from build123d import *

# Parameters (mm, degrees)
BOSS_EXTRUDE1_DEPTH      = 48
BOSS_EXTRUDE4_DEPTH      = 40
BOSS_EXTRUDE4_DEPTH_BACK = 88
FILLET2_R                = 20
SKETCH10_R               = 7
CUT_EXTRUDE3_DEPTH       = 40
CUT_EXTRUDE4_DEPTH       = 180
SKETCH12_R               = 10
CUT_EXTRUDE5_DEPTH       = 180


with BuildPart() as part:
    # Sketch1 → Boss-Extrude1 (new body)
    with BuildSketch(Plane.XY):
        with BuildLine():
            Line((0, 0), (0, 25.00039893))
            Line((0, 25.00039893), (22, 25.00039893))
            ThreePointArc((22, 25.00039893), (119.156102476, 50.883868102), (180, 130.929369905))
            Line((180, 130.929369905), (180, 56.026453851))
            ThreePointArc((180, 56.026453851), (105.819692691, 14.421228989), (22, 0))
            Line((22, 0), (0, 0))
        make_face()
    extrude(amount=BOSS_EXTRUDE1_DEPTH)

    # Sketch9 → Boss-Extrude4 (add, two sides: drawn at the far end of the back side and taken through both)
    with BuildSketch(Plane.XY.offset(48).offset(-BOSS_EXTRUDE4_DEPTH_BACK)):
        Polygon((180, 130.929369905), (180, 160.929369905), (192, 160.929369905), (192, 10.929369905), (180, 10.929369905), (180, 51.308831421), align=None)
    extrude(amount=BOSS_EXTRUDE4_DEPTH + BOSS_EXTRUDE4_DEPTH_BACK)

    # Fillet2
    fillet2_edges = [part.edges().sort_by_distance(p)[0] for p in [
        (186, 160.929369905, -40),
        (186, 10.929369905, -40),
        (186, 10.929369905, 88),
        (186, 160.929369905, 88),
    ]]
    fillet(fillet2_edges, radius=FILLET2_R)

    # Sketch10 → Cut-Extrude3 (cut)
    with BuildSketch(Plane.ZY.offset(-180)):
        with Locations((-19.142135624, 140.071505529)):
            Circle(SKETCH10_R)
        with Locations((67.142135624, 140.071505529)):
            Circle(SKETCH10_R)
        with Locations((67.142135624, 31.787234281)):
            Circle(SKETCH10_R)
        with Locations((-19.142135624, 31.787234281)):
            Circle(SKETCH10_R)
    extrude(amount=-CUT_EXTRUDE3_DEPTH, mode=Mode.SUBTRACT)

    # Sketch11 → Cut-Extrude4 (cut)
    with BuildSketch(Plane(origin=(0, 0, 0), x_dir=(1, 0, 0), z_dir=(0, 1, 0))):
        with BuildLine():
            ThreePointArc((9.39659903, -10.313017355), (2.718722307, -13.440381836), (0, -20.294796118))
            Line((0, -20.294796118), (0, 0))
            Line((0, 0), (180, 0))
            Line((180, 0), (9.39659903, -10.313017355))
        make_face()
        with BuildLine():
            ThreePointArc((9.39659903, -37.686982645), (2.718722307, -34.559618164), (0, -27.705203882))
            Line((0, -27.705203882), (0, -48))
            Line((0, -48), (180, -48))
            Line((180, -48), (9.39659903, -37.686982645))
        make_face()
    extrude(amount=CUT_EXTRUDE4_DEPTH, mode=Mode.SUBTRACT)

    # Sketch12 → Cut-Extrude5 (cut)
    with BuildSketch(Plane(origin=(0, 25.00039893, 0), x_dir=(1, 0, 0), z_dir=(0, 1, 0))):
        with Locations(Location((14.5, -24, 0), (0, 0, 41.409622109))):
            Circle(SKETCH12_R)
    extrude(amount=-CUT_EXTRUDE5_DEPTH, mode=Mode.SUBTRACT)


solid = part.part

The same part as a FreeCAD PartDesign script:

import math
import FreeCAD as App
import Part
import Sketcher

V = App.Vector


def edges_at(feature, points):
    """Names of the edges that pass closest to the given points."""
    edges = feature.Shape.Edges
    near = lambda p: min(range(len(edges)), key=lambda i: edges[i].distToShape(Part.Vertex(*p))[0])
    return sorted({f"Edge{near(p) + 1}" for p in points})


def add_polygon(sketch, points):
    """Adds a closed chain of lines whose ends are joined by coincident constraints."""
    first, n = sketch.GeometryCount, len(points)
    for a, b in zip(points, points[1:] + points[:1]):
        sketch.addGeometry(Part.LineSegment(App.Vector(*a, 0), App.Vector(*b, 0)), False)
    for i in range(n):
        sketch.addConstraint(Sketcher.Constraint("Coincident", first + i, 2, first + (i + 1) % n, 1))

doc = App.newDocument("Part")
body = doc.addObject("PartDesign::Body", "Body")

# Sketch on XY plane
sketch1 = body.newObject("Sketcher::SketchObject", "Sketch")
sketch1.AttachmentSupport = (doc.getObject("XY_Plane"), [""])
sketch1.MapMode = "FlatFace"
sketch1.addGeometry(Part.LineSegment(V(0, 25, 0), V(0, 0, 0)), False)
sketch1.addGeometry(Part.LineSegment(V(0, 0, 0), V(22, 0, 0)), False)
sketch1.addGeometry(Part.ArcOfCircle(Part.Circle(V(22, 251, 0), V(0, 0, 1), 251), math.radians(-90), math.radians(-51)), False)
sketch1.addGeometry(Part.LineSegment(V(180, 56, 0), V(180, 131, 0)), False)
sketch1.addGeometry(Part.ArcOfCircle(Part.Circle(V(33, 180, 0), V(0, 0, 1), 155), math.radians(-94), math.radians(-18)), False)
sketch1.addGeometry(Part.LineSegment(V(22, 25, 0), V(0, 25, 0)), False)
sketch1.addConstraint(Sketcher.Constraint("Coincident", 0, 2, 1, 1))
sketch1.addConstraint(Sketcher.Constraint("Tangent", 1, 2, 2, 1))
sketch1.addConstraint(Sketcher.Constraint("Coincident", 2, 2, 3, 1))
sketch1.addConstraint(Sketcher.Constraint("Coincident", 3, 2, 4, 2))
sketch1.addConstraint(Sketcher.Constraint("Coincident", 4, 1, 5, 1))
sketch1.addConstraint(Sketcher.Constraint("Coincident", 5, 2, 0, 1))
sketch1.addConstraint(Sketcher.Constraint("Vertical", 0))
sketch1.addConstraint(Sketcher.Constraint("Horizontal", 1))
sketch1.addConstraint(Sketcher.Constraint("Vertical", 3))
sketch1.addConstraint(Sketcher.Constraint("Horizontal", 5))
sketch1.addConstraint(Sketcher.Constraint("Coincident", 0, 2, -1, 1))
sketch1.addConstraint(Sketcher.Constraint("Vertical", 1, 2, 4, 1))
sketch1.addConstraint(Sketcher.Constraint("DistanceX", 1, 1, 1, 2, 22.0))
sketch1.addConstraint(Sketcher.Constraint("DistanceX", -1, 1, 2, 2, 180.0))
sketch1.addConstraint(Sketcher.Constraint("Radius", 2, 250.800841))
sketch1.addConstraint(Sketcher.Constraint("Radius", 4, 155.03067))
sketch1.addConstraint(Sketcher.Constraint("DistanceY", 0, 2, 0, 1, 25.000399))
sketch1.addConstraint(Sketcher.Constraint("DistanceY", 3, 1, 3, 2, 74.902916))
pad1 = body.newObject("PartDesign::Pad", "Pad")
pad1.Profile = sketch1
pad1.Length = 48

# Sketch on XY plane
sketch2 = body.newObject("Sketcher::SketchObject", "Sketch001")
sketch2.AttachmentSupport = (doc.getObject("XY_Plane"), [""])
sketch2.MapMode = "FlatFace"
sketch2.AttachmentOffset = App.Placement(V(0, 0, 48), App.Rotation())
add_polygon(sketch2, [(180, 161), (180, 11), (192, 11), (192, 161)])  # lines 0-3
sketch2.addConstraint(Sketcher.Constraint("Vertical", 0))
sketch2.addConstraint(Sketcher.Constraint("Horizontal", 1))
sketch2.addConstraint(Sketcher.Constraint("Vertical", 2))
sketch2.addConstraint(Sketcher.Constraint("Horizontal", 3))
sketch2.addConstraint(Sketcher.Constraint("DistanceX", 1, 1, 1, 2, 12.0))
sketch2.addConstraint(Sketcher.Constraint("DistanceY", 0, 2, 0, 1, 150.0))
sketch2.addConstraint(Sketcher.Constraint("DistanceX", -1, 1, 0, 2, 180.0))
sketch2.addConstraint(Sketcher.Constraint("DistanceY", -1, 1, 0, 2, 10.92937))
pad2 = body.newObject("PartDesign::Pad", "Pad001")
pad2.Profile = sketch2
pad2.Type = "TwoLengths"
pad2.Length = 40
pad2.Length2 = 88
doc.recompute()

fillet = body.newObject("PartDesign::Fillet", "Fillet")
fillet.Base = (pad2, edges_at(pad2, [
    (186, 160.929, -40),
    (186, 10.929, -40),
    (186, 10.929, 88),
    (186, 160.929, 88),
]))
fillet.Radius = 20

# Sketch on YZ plane
sketch3 = body.newObject("Sketcher::SketchObject", "Sketch002")
sketch3.AttachmentSupport = (doc.getObject("YZ_Plane"), [""])
sketch3.MapMode = "FlatFace"
sketch3.AttachmentOffset = App.Placement(V(0, 0, 180), App.Rotation())
sketch3.addGeometry(Part.Circle(V(140, -19, 0), V(0, 0, 1), 7), False)
sketch3.addGeometry(Part.Circle(V(140, 67, 0), V(0, 0, 1), 7), False)
sketch3.addGeometry(Part.Circle(V(32, 67, 0), V(0, 0, 1), 7), False)
sketch3.addGeometry(Part.Circle(V(32, -19, 0), V(0, 0, 1), 7), False)
sketch3.addConstraint(Sketcher.Constraint("Equal", 0, 1))
sketch3.addConstraint(Sketcher.Constraint("Equal", 1, 2))
sketch3.addConstraint(Sketcher.Constraint("Equal", 2, 3))
sketch3.addConstraint(Sketcher.Constraint("Horizontal", 1, 3, 2, 3))
sketch3.addConstraint(Sketcher.Constraint("Horizontal", 0, 3, 3, 3))
sketch3.addConstraint(Sketcher.Constraint("Vertical", 0, 3, 1, 3))
sketch3.addConstraint(Sketcher.Constraint("Vertical", 2, 3, 3, 3))
sketch3.addConstraint(Sketcher.Constraint("Diameter", 0, 14.0))
sketch3.addConstraint(Sketcher.Constraint("DistanceY", 0, 3, 1, 3, 86.284271))
sketch3.addConstraint(Sketcher.Constraint("DistanceX", 2, 3, 1, 3, 108.284271))
sketch3.addConstraint(Sketcher.Constraint("DistanceX", -1, 1, 0, 3, 140.071506))
sketch3.addConstraint(Sketcher.Constraint("DistanceY", 0, 3, -1, 1, 19.142136))
pocket1 = body.newObject("PartDesign::Pocket", "Pocket")
pocket1.Profile = sketch3
pocket1.Length = 40
pocket1.Reversed = True

# Sketch on XZ plane
sketch4 = body.newObject("Sketcher::SketchObject", "Sketch003")
sketch4.AttachmentSupport = (doc.getObject("XZ_Plane"), [""])
sketch4.MapMode = "FlatFace"
sketch4.addGeometry(Part.ArcOfCircle(Part.Circle(V(10, 20, 0), V(0, 0, 1), 10), math.radians(-180), math.radians(-93)), False)
sketch4.addGeometry(Part.LineSegment(V(9, 10, 0), V(180, 0, 0)), False)
sketch4.addGeometry(Part.LineSegment(V(180, 0, 0), V(0, 0, 0)), False)
sketch4.addGeometry(Part.LineSegment(V(0, 0, 0), V(0, 20, 0)), False)
sketch4.addGeometry(Part.ArcOfCircle(Part.Circle(V(10, 28, 0), V(0, 0, 1), 10), math.radians(93), math.radians(180)), False)
sketch4.addGeometry(Part.LineSegment(V(0, 28, 0), V(0, 48, 0)), False)
sketch4.addGeometry(Part.LineSegment(V(0, 48, 0), V(180, 48, 0)), False)
sketch4.addGeometry(Part.LineSegment(V(180, 48, 0), V(9, 38, 0)), False)
sketch4.addConstraint(Sketcher.Constraint("Tangent", 0, 2, 1, 1))
sketch4.addConstraint(Sketcher.Constraint("Coincident", 1, 2, 2, 1))
sketch4.addConstraint(Sketcher.Constraint("Coincident", 2, 2, 3, 1))
sketch4.addConstraint(Sketcher.Constraint("Tangent", 3, 2, 0, 1))
sketch4.addConstraint(Sketcher.Constraint("Tangent", 4, 2, 5, 1))
sketch4.addConstraint(Sketcher.Constraint("Coincident", 5, 2, 6, 1))
sketch4.addConstraint(Sketcher.Constraint("Coincident", 6, 2, 7, 1))
sketch4.addConstraint(Sketcher.Constraint("Tangent", 7, 2, 4, 1))
sketch4.addConstraint(Sketcher.Constraint("Horizontal", 2))
sketch4.addConstraint(Sketcher.Constraint("Vertical", 3))
sketch4.addConstraint(Sketcher.Constraint("Vertical", 5))
sketch4.addConstraint(Sketcher.Constraint("Horizontal", 6))
sketch4.addConstraint(Sketcher.Constraint("Coincident", 2, 2, -1, 1))
sketch4.addConstraint(Sketcher.Constraint("Equal", 0, 4))
sketch4.addConstraint(Sketcher.Constraint("PointOnObject", 4, 2, -2))
sketch4.addConstraint(Sketcher.Constraint("Vertical", 1, 2, 6, 2))
sketch4.addConstraint(Sketcher.Constraint("Vertical", 0, 2, 7, 2))
sketch4.addConstraint(Sketcher.Constraint("Radius", 0, 10.0))
sketch4.addConstraint(Sketcher.Constraint("DistanceX", 2, 2, 2, 1, 180.0))
sketch4.addConstraint(Sketcher.Constraint("DistanceY", -1, 1, 5, 2, 48.0))
sketch4.addConstraint(Sketcher.Constraint("DistanceX", -1, 1, 0, 2, 9.396599))
pocket2 = body.newObject("PartDesign::Pocket", "Pocket001")
pocket2.Profile = sketch4
pocket2.Length = 180

# Sketch on XZ plane
sketch5 = body.newObject("Sketcher::SketchObject", "Sketch004")
sketch5.AttachmentSupport = (doc.getObject("XZ_Plane"), [""])
sketch5.MapMode = "FlatFace"
sketch5.AttachmentOffset = App.Placement(V(0, 0, -25.000399), App.Rotation())
sketch5.addGeometry(Part.Circle(V(14, 24, 0), V(0, 0, 1), 10), False)
sketch5.addConstraint(Sketcher.Constraint("Diameter", 0, 20.0))
sketch5.addConstraint(Sketcher.Constraint("DistanceY", -1, 1, 0, 3, 24.0))
sketch5.addConstraint(Sketcher.Constraint("DistanceX", -1, 1, 0, 3, 14.5))
pocket3 = body.newObject("PartDesign::Pocket", "Pocket002")
pocket3.Profile = sketch5
pocket3.Length = 180
pocket3.Reversed = True

doc.recompute()
